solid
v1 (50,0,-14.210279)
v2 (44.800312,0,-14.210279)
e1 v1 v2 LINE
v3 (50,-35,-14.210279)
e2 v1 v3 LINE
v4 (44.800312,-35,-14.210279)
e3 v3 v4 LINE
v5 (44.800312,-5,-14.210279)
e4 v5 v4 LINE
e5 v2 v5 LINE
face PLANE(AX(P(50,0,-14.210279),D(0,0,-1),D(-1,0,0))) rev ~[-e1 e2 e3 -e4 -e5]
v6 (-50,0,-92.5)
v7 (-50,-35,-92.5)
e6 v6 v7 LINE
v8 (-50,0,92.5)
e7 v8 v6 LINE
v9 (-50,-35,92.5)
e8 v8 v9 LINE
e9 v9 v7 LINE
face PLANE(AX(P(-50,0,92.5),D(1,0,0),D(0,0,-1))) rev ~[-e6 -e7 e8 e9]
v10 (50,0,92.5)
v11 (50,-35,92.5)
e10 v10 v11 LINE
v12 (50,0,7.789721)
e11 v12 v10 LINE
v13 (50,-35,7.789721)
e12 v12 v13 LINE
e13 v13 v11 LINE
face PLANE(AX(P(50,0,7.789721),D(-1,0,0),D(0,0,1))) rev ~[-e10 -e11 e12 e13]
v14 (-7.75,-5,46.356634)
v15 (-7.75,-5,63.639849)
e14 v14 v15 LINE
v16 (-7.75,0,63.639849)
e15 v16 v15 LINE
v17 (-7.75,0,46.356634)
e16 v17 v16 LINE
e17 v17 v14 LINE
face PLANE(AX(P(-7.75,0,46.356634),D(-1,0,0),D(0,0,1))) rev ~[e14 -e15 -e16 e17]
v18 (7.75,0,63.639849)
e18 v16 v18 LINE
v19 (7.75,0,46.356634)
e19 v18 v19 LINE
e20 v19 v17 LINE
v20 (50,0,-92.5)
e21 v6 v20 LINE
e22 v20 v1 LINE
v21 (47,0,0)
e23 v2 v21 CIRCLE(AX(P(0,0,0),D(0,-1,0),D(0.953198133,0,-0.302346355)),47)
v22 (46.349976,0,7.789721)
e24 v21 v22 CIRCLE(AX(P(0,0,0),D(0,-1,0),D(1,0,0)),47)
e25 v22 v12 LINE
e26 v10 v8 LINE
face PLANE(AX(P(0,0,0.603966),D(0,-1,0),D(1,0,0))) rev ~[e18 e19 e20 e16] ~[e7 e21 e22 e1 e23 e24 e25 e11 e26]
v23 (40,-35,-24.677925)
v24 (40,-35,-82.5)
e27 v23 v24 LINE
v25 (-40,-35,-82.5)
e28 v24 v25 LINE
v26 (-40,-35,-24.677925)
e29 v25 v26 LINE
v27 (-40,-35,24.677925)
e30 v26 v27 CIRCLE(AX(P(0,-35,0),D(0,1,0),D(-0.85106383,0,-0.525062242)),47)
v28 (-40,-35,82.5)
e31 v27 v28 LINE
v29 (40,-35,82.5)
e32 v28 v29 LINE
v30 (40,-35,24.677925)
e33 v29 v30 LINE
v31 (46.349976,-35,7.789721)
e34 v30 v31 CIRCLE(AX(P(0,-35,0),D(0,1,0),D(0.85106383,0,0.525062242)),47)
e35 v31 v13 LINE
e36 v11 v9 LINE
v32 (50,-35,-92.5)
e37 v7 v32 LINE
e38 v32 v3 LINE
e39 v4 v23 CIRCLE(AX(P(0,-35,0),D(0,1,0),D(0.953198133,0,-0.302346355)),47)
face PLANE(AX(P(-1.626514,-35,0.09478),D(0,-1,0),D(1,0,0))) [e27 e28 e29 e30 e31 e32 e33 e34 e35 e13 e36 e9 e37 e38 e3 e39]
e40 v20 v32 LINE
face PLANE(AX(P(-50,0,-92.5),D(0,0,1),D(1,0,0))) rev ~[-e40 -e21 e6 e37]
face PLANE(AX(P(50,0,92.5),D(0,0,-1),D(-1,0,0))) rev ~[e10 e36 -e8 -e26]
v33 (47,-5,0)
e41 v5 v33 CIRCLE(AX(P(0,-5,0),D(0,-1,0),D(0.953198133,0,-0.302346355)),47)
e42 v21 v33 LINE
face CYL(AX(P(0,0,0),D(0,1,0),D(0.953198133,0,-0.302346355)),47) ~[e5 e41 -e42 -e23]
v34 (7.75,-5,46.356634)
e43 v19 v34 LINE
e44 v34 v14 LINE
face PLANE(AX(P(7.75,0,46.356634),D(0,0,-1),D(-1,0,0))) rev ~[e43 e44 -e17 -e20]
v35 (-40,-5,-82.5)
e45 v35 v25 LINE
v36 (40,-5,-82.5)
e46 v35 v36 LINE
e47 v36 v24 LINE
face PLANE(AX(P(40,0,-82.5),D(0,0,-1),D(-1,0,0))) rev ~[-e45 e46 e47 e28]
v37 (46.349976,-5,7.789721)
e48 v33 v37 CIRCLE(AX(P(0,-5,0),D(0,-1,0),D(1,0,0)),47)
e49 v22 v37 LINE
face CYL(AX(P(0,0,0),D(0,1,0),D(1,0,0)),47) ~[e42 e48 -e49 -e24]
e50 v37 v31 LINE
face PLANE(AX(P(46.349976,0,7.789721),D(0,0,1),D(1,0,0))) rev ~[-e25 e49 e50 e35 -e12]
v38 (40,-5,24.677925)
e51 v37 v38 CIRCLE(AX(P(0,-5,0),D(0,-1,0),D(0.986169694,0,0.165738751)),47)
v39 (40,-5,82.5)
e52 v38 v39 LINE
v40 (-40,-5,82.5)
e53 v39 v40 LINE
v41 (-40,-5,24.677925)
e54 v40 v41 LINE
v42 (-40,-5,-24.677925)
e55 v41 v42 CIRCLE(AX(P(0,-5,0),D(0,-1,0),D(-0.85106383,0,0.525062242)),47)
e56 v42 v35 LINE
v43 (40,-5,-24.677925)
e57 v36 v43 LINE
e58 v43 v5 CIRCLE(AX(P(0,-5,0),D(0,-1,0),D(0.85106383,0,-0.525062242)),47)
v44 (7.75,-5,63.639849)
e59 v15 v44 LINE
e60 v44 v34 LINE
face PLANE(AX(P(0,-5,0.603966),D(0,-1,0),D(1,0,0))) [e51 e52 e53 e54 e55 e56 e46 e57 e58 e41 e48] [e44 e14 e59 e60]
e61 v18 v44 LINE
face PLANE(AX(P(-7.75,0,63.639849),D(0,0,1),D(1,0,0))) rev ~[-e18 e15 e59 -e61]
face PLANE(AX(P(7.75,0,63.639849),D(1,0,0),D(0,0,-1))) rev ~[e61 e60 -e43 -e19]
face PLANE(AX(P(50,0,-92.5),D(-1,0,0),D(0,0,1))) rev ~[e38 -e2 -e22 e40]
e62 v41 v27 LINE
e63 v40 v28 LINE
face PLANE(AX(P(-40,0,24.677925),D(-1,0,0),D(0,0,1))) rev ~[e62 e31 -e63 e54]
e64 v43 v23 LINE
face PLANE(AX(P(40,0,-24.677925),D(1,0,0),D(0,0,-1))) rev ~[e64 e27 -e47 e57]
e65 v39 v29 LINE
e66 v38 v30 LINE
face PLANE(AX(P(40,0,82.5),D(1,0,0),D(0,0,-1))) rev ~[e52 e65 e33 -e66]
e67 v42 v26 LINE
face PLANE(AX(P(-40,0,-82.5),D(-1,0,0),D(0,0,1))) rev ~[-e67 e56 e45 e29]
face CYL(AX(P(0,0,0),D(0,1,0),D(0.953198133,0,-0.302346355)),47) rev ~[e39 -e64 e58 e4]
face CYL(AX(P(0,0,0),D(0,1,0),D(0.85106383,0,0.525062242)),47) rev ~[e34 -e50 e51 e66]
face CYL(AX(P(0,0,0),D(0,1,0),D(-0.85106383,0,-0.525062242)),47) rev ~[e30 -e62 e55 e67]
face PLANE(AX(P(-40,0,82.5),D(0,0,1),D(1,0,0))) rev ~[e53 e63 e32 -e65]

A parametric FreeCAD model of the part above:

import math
import FreeCAD as App
import Part
import Sketcher
Q = App.Units.Quantity


def add_polygon(sketch, points):
    """Adds a closed chain of lines whose ends are joined by coincident constraints."""
    first, n = sketch.GeometryCount, len(points)
    for a, b in zip(points, points[1:] + points[:1]):
        sketch.addGeometry(Part.LineSegment(App.Vector(*a, 0), App.Vector(*b, 0)), False)
    for i in range(n):
        sketch.addConstraint(Sketcher.Constraint("Coincident", first + i, 2, first + (i + 1) % n, 1))

doc = App.newDocument("Part")
body = doc.addObject("PartDesign::Body", "Body")

sketch1 = body.newObject("Sketcher::SketchObject", "Sketch")
sketch1.AttachmentSupport = (doc.getObject("XZ_Plane"), [""])
sketch1.MapMode = "FlatFace"
sketch1.addGeometry([
    Part.LineSegment(App.Vector(40, -24.7, 0), App.Vector(40, -82.5, 0)),
    Part.LineSegment(App.Vector(40, -82.5, 0), App.Vector(-40, -82.5, 0)),
    Part.LineSegment(App.Vector(-40, -82.5, 0), App.Vector(-40, -24.7, 0)),
    Part.ArcOfCircle(Part.Circle(App.Vector(0, 0, 0), App.Vector(0, 0, 1), 47), math.radians(148), math.radians(212)),
    Part.LineSegment(App.Vector(-40, 24.7, 0), App.Vector(-40, 82.5, 0)),
    Part.LineSegment(App.Vector(-40, 82.5, 0), App.Vector(40, 82.5, 0)),
    Part.LineSegment(App.Vector(40, 82.5, 0), App.Vector(40, 24.7, 0)),
    Part.ArcOfCircle(Part.Circle(App.Vector(0, 0, 0), App.Vector(0, 0, 1), 47), math.radians(10), math.radians(32)),
    Part.LineSegment(App.Vector(46.3, 7.8, 0), App.Vector(50, 7.8, 0)),
    Part.LineSegment(App.Vector(50, 7.8, 0), App.Vector(50, 92.5, 0)),
    Part.LineSegment(App.Vector(50, 92.5, 0), App.Vector(-50, 92.5, 0)),
    Part.LineSegment(App.Vector(-50, 92.5, 0), App.Vector(-50, -92.5, 0)),
    Part.LineSegment(App.Vector(-50, -92.5, 0), App.Vector(50, -92.5, 0)),
    Part.LineSegment(App.Vector(50, -92.5, 0), App.Vector(50, -14.2, 0)),
    Part.LineSegment(App.Vector(50, -14.2, 0), App.Vector(44.8, -14.2, 0)),
    Part.ArcOfCircle(Part.Circle(App.Vector(0, 0, 0), App.Vector(0, 0, 1), 47), math.radians(-31.67), math.radians(-17.6)),
], False)
sketch1.addConstraint([
    Sketcher.Constraint("Coincident", 0, 2, 1, 1),
    Sketcher.Constraint("Coincident", 1, 2, 2, 1),
    Sketcher.Constraint("Coincident", 2, 2, 3, 2),
    Sketcher.Constraint("Coincident", 3, 1, 4, 1),
    Sketcher.Constraint("Coincident", 4, 2, 5, 1),
    Sketcher.Constraint("Coincident", 5, 2, 6, 1),
    Sketcher.Constraint("Coincident", 6, 2, 7, 2),
    Sketcher.Constraint("Coincident", 7, 1, 8, 1),
    Sketcher.Constraint("Coincident", 8, 2, 9, 1),
    Sketcher.Constraint("Coincident", 9, 2, 10, 1),
    Sketcher.Constraint("Coincident", 10, 2, 11, 1),
    Sketcher.Constraint("Coincident", 11, 2, 12, 1),
    Sketcher.Constraint("Coincident", 12, 2, 13, 1),
    Sketcher.Constraint("Coincident", 13, 2, 14, 1),
    Sketcher.Constraint("Coincident", 14, 2, 15, 2),
    Sketcher.Constraint("Coincident", 15, 1, 0, 1),
    Sketcher.Constraint("Vertical", 0),
    Sketcher.Constraint("Horizontal", 1),
    Sketcher.Constraint("Vertical", 2),
    Sketcher.Constraint("Vertical", 4),
    Sketcher.Constraint("Horizontal", 5),
    Sketcher.Constraint("Vertical", 6),
    Sketcher.Constraint("Horizontal", 8),
    Sketcher.Constraint("Vertical", 9),
    Sketcher.Constraint("Horizontal", 10),
    Sketcher.Constraint("Vertical", 11),
    Sketcher.Constraint("Horizontal", 12),
    Sketcher.Constraint("Vertical", 13),
    Sketcher.Constraint("Horizontal", 14),
    Sketcher.Constraint("Coincident", 3, 3, -1, 1),
    Sketcher.Constraint("Coincident", 7, 3, -1, 1),
    Sketcher.Constraint("Coincident", 15, 3, -1, 1),
    Sketcher.Constraint("Equal", 3, 7),
    Sketcher.Constraint("Equal", 7, 15),
    Sketcher.Constraint("Symmetric", 0, 2, 4, 2, -1, 1),
    Sketcher.Constraint("Symmetric", 9, 2, 11, 2, -1, 1),
    Sketcher.Constraint("Horizontal", 3, 1, 6, 2),
    Sketcher.Constraint("Horizontal", 2, 2, 15, 1),
    Sketcher.Constraint("Vertical", 9, 2, 12, 2),
    Sketcher.Constraint("Radius", 3, Q("47 mm")),
    Sketcher.Constraint("DistanceX", 1, 2, 1, 1, Q("80 mm")),
    Sketcher.Constraint("DistanceX", 10, 2, 10, 1, Q("100 mm")),
    Sketcher.Constraint("DistanceY", 11, 2, 11, 1, Q("185 mm")),
    Sketcher.Constraint("DistanceY", 5, 2, 9, 2, Q("10 mm")),
    Sketcher.Constraint("DistanceY", 13, 2, 8, 2, Q("22 mm")),
    Sketcher.Constraint("DistanceY", 9, 1, 9, 2, Q("84.710279 mm")),
])
pad1 = body.newObject("PartDesign::Pad", "Pad")
pad1.Profile = sketch1
pad1.Length = 35

sketch2 = body.newObject("Sketcher::SketchObject", "Sketch001")
sketch2.AttachmentSupport = (doc.getObject("XZ_Plane"), [""])
sketch2.MapMode = "FlatFace"
sketch2.addGeometry(Part.LineSegment(App.Vector(-40, -82, 0), App.Vector(40, -82, 0)), False)
sketch2.addGeometry(Part.LineSegment(App.Vector(40, -82, 0), App.Vector(40, -25, 0)), False)
sketch2.addGeometry(Part.ArcOfCircle(Part.Circle(App.Vector(0, 0, 0), App.Vector(0, 0, 1), 47), math.radians(-31.67), math.radians(-17.6)), False)
sketch2.addGeometry(Part.ArcOfCircle(Part.Circle(App.Vector(0, 0, 0), App.Vector(0, 0, 1), 47), math.radians(-17.6), math.radians(0)), False)
sketch2.addGeometry(Part.ArcOfCircle(Part.Circle(App.Vector(0, 0, 0), App.Vector(0, 0, 1), 47), math.radians(0), math.radians(9.54)), False)
sketch2.addGeometry(Part.ArcOfCircle(Part.Circle(App.Vector(0, 0, 0), App.Vector(0, 0, 1), 47), math.radians(10), math.radians(32)), False)
sketch2.addGeometry(Part.LineSegment(App.Vector(40, 25, 0), App.Vector(40, 82, 0)), False)
sketch2.addGeometry(Part.LineSegment(App.Vector(40, 82, 0), App.Vector(-40, 82, 0)), False)
sketch2.addGeometry(Part.LineSegment(App.Vector(-40, 82, 0), App.Vector(-40, 25, 0)), False)
sketch2.addGeometry(Part.ArcOfCircle(Part.Circle(App.Vector(0, 0, 0), App.Vector(0, 0, 1), 47), math.radians(148), math.radians(212)), False)
sketch2.addGeometry(Part.LineSegment(App.Vector(-40, -25, 0), App.Vector(-40, -82, 0)), False)
add_polygon(sketch2, [(8, 46), (-8, 46), (-8, 64), (8, 64)])
sketch2.addConstraint([
    Sketcher.Constraint("Coincident", 0, 2, 1, 1),
    Sketcher.Constraint("Coincident", 1, 2, 2, 1),
    Sketcher.Constraint("Tangent", 2, 2, 3, 1),
    Sketcher.Constraint("Tangent", 3, 2, 4, 1),
    Sketcher.Constraint("Tangent", 4, 2, 5, 1),
    Sketcher.Constraint("Coincident", 5, 2, 6, 1),
    Sketcher.Constraint("Coincident", 6, 2, 7, 1),
    Sketcher.Constraint("Coincident", 7, 2, 8, 1),
    Sketcher.Constraint("Coincident", 8, 2, 9, 1),
    Sketcher.Constraint("Coincident", 9, 2, 10, 1),
    Sketcher.Constraint("Coincident", 10, 2, 0, 1),
    Sketcher.Constraint("Horizontal", 0),
    Sketcher.Constraint("Vertical", 1),
    Sketcher.Constraint("Vertical", 6),
    Sketcher.Constraint("Horizontal", 7),
    Sketcher.Constraint("Vertical", 8),
    Sketcher.Constraint("Vertical", 10),
    Sketcher.Constraint("Horizontal", 11),
    Sketcher.Constraint("Vertical", 12),
    Sketcher.Constraint("Horizontal", 13),
    Sketcher.Constraint("Vertical", 14),
    Sketcher.Constraint("Coincident", 2, 3, -1, 1),
    Sketcher.Constraint("Coincident", 4, 3, -1, 1),
    Sketcher.Constraint("Coincident", 9, 3, -1, 1),
    Sketcher.Constraint("Equal", 4, 5),
    Sketcher.Constraint("Equal", 5, 9),
    Sketcher.Constraint("Symmetric", 0, 2, 7, 2, -1, 1),
    Sketcher.Constraint("PointOnObject", 3, 2, -1),
    Sketcher.Constraint("Horizontal", 5, 2, 8, 2),
    Sketcher.Constraint("Horizontal", 1, 2, 9, 2),
    Sketcher.Constraint("Radius", 2, Q("47 mm")),
    Sketcher.Constraint("DistanceX", 0, 1, 0, 2, Q("80 mm")),
    Sketcher.Constraint("DistanceX", 11, 2, 11, 1, Q("15.5 mm")),
    Sketcher.Constraint("DistanceY", 2, 2, 4, 2, Q("22 mm")),
    Sketcher.Constraint("DistanceY", 0, 2, -1, 1, Q("82.5 mm")),
    Sketcher.Constraint("DistanceX", 11, 2, -1, 1, Q("7.75 mm")),
    Sketcher.Constraint("DistanceY", 12, 1, 12, 2, Q("17.283215 mm")),
    Sketcher.Constraint("DistanceY", 2, 2, -1, 1, Q("14.210279 mm")),
    Sketcher.Constraint("DistanceY", -1, 1, 12, 2, Q("63.639849 mm")),
])
pad2 = body.newObject("PartDesign::Pad", "Pad001")
pad2.Profile = sketch2
pad2.Length = 5

doc.recompute()
